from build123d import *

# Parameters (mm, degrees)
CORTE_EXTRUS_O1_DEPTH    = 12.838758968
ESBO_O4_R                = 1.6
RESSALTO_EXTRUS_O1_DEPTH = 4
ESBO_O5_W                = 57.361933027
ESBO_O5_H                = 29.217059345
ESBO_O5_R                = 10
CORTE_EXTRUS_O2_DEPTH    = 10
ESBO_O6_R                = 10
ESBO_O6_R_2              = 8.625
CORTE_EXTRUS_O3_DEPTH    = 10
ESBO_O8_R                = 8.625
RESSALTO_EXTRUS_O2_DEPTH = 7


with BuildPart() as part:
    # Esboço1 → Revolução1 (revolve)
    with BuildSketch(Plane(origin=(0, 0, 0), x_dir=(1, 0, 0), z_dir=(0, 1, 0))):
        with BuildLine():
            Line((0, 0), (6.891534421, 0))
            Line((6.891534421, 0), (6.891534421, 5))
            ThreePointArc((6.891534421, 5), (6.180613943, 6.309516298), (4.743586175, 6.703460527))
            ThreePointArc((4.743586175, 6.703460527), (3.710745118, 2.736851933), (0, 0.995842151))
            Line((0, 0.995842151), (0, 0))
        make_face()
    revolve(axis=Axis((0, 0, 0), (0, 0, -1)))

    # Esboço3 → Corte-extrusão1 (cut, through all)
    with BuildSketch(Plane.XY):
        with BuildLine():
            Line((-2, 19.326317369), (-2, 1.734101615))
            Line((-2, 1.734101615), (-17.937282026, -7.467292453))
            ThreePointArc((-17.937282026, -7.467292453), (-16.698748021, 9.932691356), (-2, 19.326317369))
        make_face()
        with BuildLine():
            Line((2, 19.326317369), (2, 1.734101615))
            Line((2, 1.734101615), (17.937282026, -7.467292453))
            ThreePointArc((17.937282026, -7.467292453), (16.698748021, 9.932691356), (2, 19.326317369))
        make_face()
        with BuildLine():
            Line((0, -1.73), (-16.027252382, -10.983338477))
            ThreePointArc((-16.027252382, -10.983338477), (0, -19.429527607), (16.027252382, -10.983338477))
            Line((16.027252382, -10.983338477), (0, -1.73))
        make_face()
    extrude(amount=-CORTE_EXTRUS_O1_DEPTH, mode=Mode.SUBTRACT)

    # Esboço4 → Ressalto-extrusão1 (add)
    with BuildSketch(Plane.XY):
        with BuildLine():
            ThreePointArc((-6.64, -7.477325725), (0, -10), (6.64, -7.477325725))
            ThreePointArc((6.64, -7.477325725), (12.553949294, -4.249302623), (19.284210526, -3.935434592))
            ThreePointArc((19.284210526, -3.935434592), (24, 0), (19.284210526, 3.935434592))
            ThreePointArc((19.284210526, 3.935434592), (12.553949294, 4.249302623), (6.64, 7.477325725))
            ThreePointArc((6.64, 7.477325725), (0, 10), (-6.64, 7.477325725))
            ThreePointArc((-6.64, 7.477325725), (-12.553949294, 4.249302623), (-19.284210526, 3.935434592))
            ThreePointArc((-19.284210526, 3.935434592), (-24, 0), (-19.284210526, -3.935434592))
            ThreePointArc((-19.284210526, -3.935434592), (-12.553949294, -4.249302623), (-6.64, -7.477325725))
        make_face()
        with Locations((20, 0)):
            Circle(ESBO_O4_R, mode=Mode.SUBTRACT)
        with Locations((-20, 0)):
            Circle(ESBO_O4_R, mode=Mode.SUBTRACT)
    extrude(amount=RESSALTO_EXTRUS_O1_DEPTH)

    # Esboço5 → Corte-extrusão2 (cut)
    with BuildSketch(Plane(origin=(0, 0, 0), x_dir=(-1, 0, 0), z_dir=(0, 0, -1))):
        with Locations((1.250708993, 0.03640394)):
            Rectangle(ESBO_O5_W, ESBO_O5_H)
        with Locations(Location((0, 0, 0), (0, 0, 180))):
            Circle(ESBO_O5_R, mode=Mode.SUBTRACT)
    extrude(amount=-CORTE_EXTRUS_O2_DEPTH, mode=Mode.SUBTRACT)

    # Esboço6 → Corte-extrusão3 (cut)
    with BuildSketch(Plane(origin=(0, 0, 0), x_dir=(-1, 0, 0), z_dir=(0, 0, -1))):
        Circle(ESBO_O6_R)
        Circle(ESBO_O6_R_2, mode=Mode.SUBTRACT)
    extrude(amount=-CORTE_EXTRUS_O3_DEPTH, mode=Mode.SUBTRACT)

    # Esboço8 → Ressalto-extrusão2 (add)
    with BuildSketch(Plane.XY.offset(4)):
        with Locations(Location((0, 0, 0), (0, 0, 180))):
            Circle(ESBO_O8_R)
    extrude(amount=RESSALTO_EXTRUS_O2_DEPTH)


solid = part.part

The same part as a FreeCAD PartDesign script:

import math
import FreeCAD as App
import Part
import Sketcher

V = App.Vector
Q = App.Units.Quantity


def add_polygon(sketch, points):
    """Adds a closed chain of lines whose ends are joined by coincident constraints."""
    first, n = sketch.GeometryCount, len(points)
    for a, b in zip(points, points[1:] + points[:1]):
        sketch.addGeometry(Part.LineSegment(App.Vector(*a, 0), App.Vector(*b, 0)), False)
    for i in range(n):
        sketch.addConstraint(Sketcher.Constraint("Coincident", first + i, 2, first + (i + 1) % n, 1))

doc = App.newDocument("Part")
body = doc.addObject("PartDesign::Body", "Body")

sketch1 = body.newObject("Sketcher::SketchObject", "Sketch")
sketch1.AttachmentSupport = (doc.getObject("XZ_Plane"), [""])
sketch1.MapMode = "FlatFace"
sketch1.addGeometry([
    Part.LineSegment(V(0, 0, 0), V(6.891534, 0, 0)),
    Part.LineSegment(V(6.891534, 0, 0), V(6.891534, -5, 0)),
    Part.ArcOfCircle(Part.Circle(V(5, -4.820842, 0), V(0, 0, 1), 1.9), math.radians(-97.755997), math.radians(-5.410664)),
    Part.ArcOfCircle(Part.Circle(V(0, -5.820842, 0), V(0, 0, 1), 4.825), math.radians(-10.540243), math.radians(90)),
    Part.LineSegment(V(0, -0.995842, 0), V(0, 0, 0)),
], False)
sketch1.addConstraint([
    Sketcher.Constraint("Coincident", 0, 2, 1, 1),
    Sketcher.Constraint("Coincident", 1, 2, 2, 2),
    Sketcher.Constraint("Coincident", 2, 1, 3, 1),
    Sketcher.Constraint("Coincident", 3, 2, 4, 1),
    Sketcher.Constraint("Coincident", 4, 2, 0, 1),
    Sketcher.Constraint("Horizontal", 0),
    Sketcher.Constraint("Vertical", 1),
    Sketcher.Constraint("Vertical", 4),
    Sketcher.Constraint("Coincident", 4, 2, -1, 1),
    Sketcher.Constraint("PointOnObject", 3, 3, -2),
    Sketcher.Constraint("Radius", 2, 1.9),
    Sketcher.Constraint("DistanceY", 1, 2, 1, 1, 5.0),
    Sketcher.Constraint("DistanceX", -1, 1, 2, 3, 5.0),
    Sketcher.Constraint("Radius", 3, 4.825),
    Sketcher.Constraint("DistanceY", 3, 3, 2, 3, 1.0),
    Sketcher.Constraint("DistanceX", 0, 1, 0, 2, 6.891534),
])
revolution = body.newObject("PartDesign::Revolution", "Revolution")
revolution.Profile = sketch1
revolution.ReferenceAxis = (sketch1, ["V_Axis"])
revolution.Angle = 360

sketch2 = body.newObject("Sketcher::SketchObject", "Sketch001")
sketch2.AttachmentSupport = (doc.getObject("XY_Plane"), [""])
sketch2.MapMode = "FlatFace"
sketch2.addGeometry([
    Part.LineSegment(V(-2, 1.734102, 0), V(-2, 19.326317, 0)),
    Part.ArcOfCircle(Part.Circle(V(0, 0, 0), V(0, 0, 1), 19.429528), math.radians(95.90827), math.radians(202.601967)),
    Part.LineSegment(V(-17.937282, -7.467292, 0), V(-2, 1.734102, 0)),
    Part.LineSegment(V(2, 19.326317, 0), V(2, 1.734102, 0)),
    Part.LineSegment(V(2, 1.734102, 0), V(17.937282, -7.467292, 0)),
    Part.ArcOfCircle(Part.Circle(V(0, 0, 0), V(0, 0, 1), 19.429528), math.radians(-22.601967), math.radians(84.09173)),
    Part.LineSegment(V(0, -1.73, 0), V(-16.027252, -10.983338, 0)),
    Part.ArcOfCircle(Part.Circle(V(0, 0, 0), V(0, 0, 1), 19.429528), math.radians(-145.577494), math.radians(-34.422506)),
    Part.LineSegment(V(16.027252, -10.983338, 0), V(0, -1.73, 0)),
], False)
sketch2.addConstraint([
    Sketcher.Constraint("Coincident", 0, 2, 1, 1),
    Sketcher.Constraint("Coincident", 1, 2, 2, 1),
    Sketcher.Constraint("Coincident", 2, 2, 0, 1),
    Sketcher.Constraint("Coincident", 3, 2, 4, 1),
    Sketcher.Constraint("Coincident", 4, 2, 5, 1),
    Sketcher.Constraint("Coincident", 5, 2, 3, 1),
    Sketcher.Constraint("Coincident", 6, 2, 7, 1),
    Sketcher.Constraint("Coincident", 7, 2, 8, 1),
    Sketcher.Constraint("Coincident", 8, 2, 6, 1),
    Sketcher.Constraint("Vertical", 0),
    Sketcher.Constraint("Vertical", 3),
    Sketcher.Constraint("Coincident", 1, 3, -1, 1),
    Sketcher.Constraint("Coincident", 5, 3, -1, 1),
    Sketcher.Constraint("Coincident", 7, 3, -1, 1),
    Sketcher.Constraint("Equal", 1, 5),
    Sketcher.Constraint("Equal", 5, 7),
    Sketcher.Constraint("Symmetric", 2, 2, 3, 2, -2),
    Sketcher.Constraint("PointOnObject", 8, 2, -2),
    Sketcher.Constraint("Parallel", 2, 6),
    Sketcher.Constraint("Parallel", 4, 8),
    Sketcher.Constraint("Horizontal", 1, 2, 4, 2),
    Sketcher.Constraint("Angle", 2, Q("30 deg")),
    Sketcher.Constraint("DistanceX", 0, 2, -1, 1, 2.0),
    Sketcher.Constraint("DistanceY", 8, 2, -1, 1, 1.73),
    Sketcher.Constraint("Radius", 1, 19.429528),
    Sketcher.Constraint("DistanceY", -1, 1, 2, 2, 1.734102),
])
pocket1 = body.newObject("PartDesign::Pocket", "Pocket")
pocket1.Profile = sketch2
pocket1.Type = "ThroughAll"

sketch3 = body.newObject("Sketcher::SketchObject", "Sketch002")
sketch3.AttachmentSupport = (doc.getObject("XY_Plane"), [""])
sketch3.MapMode = "FlatFace"
sketch3.addGeometry([
    Part.ArcOfCircle(Part.Circle(V(0, 0, 0), V(0, 0, 1), 10), math.radians(-131.605654), math.radians(-48.394346)),
    Part.ArcOfCircle(Part.Circle(V(16.6, -18.693314, 0), V(0, 0, 1), 15), math.radians(79.691547), math.radians(131.605654)),
    Part.ArcOfCircle(Part.Circle(V(20, 0, 0), V(0, 0, 1), 4), math.radians(-100.308453), math.radians(100.308453)),
    Part.ArcOfCircle(Part.Circle(V(16.6, 18.693314, 0), V(0, 0, 1), 15), math.radians(-131.605654), math.radians(-79.691547)),
    Part.ArcOfCircle(Part.Circle(V(0, 0, 0), V(0, 0, 1), 10), math.radians(48.394346), math.radians(131.605654)),
    Part.ArcOfCircle(Part.Circle(V(-16.6, 18.693314, 0), V(0, 0, 1), 15), math.radians(-100.308453), math.radians(-48.394346)),
    Part.ArcOfCircle(Part.Circle(V(-20, 0, 0), V(0, 0, 1), 4), math.radians(79.691547), math.radians(280.308453)),
    Part.ArcOfCircle(Part.Circle(V(-16.6, -18.693314, 0), V(0, 0, 1), 15), math.radians(48.394346), math.radians(100.308453)),
    Part.Circle(V(-20, 0, 0), V(0, 0, 1), 1.6),
    Part.Circle(V(20, 0, 0), V(0, 0, 1), 1.6),
], False)
sketch3.addConstraint([
    Sketcher.Constraint("Tangent", 0, 2, 1, 2),
    Sketcher.Constraint("Tangent", 1, 1, 2, 1),
    Sketcher.Constraint("Tangent", 2, 2, 3, 2),
    Sketcher.Constraint("Tangent", 3, 1, 4, 1),
    Sketcher.Constraint("Tangent", 4, 2, 5, 2),
    Sketcher.Constraint("Tangent", 5, 1, 6, 1),
    Sketcher.Constraint("Tangent", 6, 2, 7, 2),
    Sketcher.Constraint("Tangent", 7, 1, 0, 1),
    Sketcher.Constraint("Coincident", 0, 3, -1, 1),
    Sketcher.Constraint("Coincident", 4, 3, -1, 1),
    Sketcher.Constraint("Coincident", 8, 3, 6, 3),
    Sketcher.Constraint("Coincident", 9, 3, 2, 3),
    Sketcher.Constraint("Equal", 1, 3),
    Sketcher.Constraint("Equal", 0, 4),
    Sketcher.Constraint("Equal", 3, 5),
    Sketcher.Constraint("Equal", 2, 6),
    Sketcher.Constraint("Equal", 5, 7),
    Sketcher.Constraint("Equal", 8, 9),
    Sketcher.Constraint("Symmetric", 2, 3, 6, 3, -1, 1),
    Sketcher.Constraint("PointOnObject", 2, 3, -1),
    Sketcher.Constraint("Radius", 0, 10.0),
    Sketcher.Constraint("Radius", 1, 15.0),
    Sketcher.Constraint("Radius", 2, 4.0),
    Sketcher.Constraint("Diameter", 8, 3.2),
    Sketcher.Constraint("DistanceX", -1, 1, 2, 3, 20.0),
])
pad1 = body.newObject("PartDesign::Pad", "Pad")
pad1.Profile = sketch3
pad1.Length = 4

sketch4 = body.newObject("Sketcher::SketchObject", "Sketch003")
sketch4.AttachmentSupport = (doc.getObject("XY_Plane"), [""])
sketch4.MapMode = "FlatFace"
add_polygon(sketch4, [(27.430258, 14.644934), (27.430258, -14.572126), (-29.931676, -14.572126), (-29.931676, 14.644934)])
sketch4.addGeometry(Part.Circle(V(0, 0, 0), V(0, 0, 1), 10), False)
sketch4.addConstraint([
    Sketcher.Constraint("Vertical", 0),
    Sketcher.Constraint("Horizontal", 1),
    Sketcher.Constraint("Vertical", 2),
    Sketcher.Constraint("Horizontal", 3),
    Sketcher.Constraint("Coincident", 4, 3, -1, 1),
    Sketcher.Constraint("Diameter", 4, 20.0),
    Sketcher.Constraint("DistanceY", 0, 2, 0, 1, 29.217059),
    Sketcher.Constraint("DistanceX", 1, 2, 1, 1, 57.361933),
    Sketcher.Constraint("DistanceX", -1, 1, 0, 2, 27.430258),
    Sketcher.Constraint("DistanceY", 0, 2, -1, 1, 14.572126),
])
pocket2 = body.newObject("PartDesign::Pocket", "Pocket001")
pocket2.Profile = sketch4
pocket2.Length = 10
pocket2.Reversed = True

sketch5 = body.newObject("Sketcher::SketchObject", "Sketch004")
sketch5.AttachmentSupport = (doc.getObject("XY_Plane"), [""])
sketch5.MapMode = "FlatFace"
sketch5.addGeometry([
    Part.Circle(V(0, 0, 0), V(0, 0, 1), 10),
    Part.Circle(V(0, 0, 0), V(0, 0, 1), 8.625),
], False)
sketch5.addConstraint([
    Sketcher.Constraint("Coincident", 0, 3, -1, 1),
    Sketcher.Constraint("Coincident", 1, 3, -1, 1),
    Sketcher.Constraint("Diameter", 0, 20.0),
    Sketcher.Constraint("Diameter", 1, 17.25),
])
pocket3 = body.newObject("PartDesign::Pocket", "Pocket002")
pocket3.Profile = sketch5
pocket3.Length = 10
pocket3.Reversed = True

sketch6 = body.newObject("Sketcher::SketchObject", "Sketch005")
sketch6.AttachmentSupport = (doc.getObject("XY_Plane"), [""])
sketch6.MapMode = "FlatFace"
sketch6.AttachmentOffset = App.Placement(V(0, 0, 4), App.Rotation())
sketch6.addGeometry(Part.Circle(V(0, 0, 0), V(0, 0, 1), 8.625), False)
sketch6.addConstraint([
    Sketcher.Constraint("Coincident", 0, 3, -1, 1),
    Sketcher.Constraint("Diameter", 0, 17.25),
])
pad2 = body.newObject("PartDesign::Pad", "Pad001")
pad2.Profile = sketch6
pad2.Length = 7

doc.recompute()
